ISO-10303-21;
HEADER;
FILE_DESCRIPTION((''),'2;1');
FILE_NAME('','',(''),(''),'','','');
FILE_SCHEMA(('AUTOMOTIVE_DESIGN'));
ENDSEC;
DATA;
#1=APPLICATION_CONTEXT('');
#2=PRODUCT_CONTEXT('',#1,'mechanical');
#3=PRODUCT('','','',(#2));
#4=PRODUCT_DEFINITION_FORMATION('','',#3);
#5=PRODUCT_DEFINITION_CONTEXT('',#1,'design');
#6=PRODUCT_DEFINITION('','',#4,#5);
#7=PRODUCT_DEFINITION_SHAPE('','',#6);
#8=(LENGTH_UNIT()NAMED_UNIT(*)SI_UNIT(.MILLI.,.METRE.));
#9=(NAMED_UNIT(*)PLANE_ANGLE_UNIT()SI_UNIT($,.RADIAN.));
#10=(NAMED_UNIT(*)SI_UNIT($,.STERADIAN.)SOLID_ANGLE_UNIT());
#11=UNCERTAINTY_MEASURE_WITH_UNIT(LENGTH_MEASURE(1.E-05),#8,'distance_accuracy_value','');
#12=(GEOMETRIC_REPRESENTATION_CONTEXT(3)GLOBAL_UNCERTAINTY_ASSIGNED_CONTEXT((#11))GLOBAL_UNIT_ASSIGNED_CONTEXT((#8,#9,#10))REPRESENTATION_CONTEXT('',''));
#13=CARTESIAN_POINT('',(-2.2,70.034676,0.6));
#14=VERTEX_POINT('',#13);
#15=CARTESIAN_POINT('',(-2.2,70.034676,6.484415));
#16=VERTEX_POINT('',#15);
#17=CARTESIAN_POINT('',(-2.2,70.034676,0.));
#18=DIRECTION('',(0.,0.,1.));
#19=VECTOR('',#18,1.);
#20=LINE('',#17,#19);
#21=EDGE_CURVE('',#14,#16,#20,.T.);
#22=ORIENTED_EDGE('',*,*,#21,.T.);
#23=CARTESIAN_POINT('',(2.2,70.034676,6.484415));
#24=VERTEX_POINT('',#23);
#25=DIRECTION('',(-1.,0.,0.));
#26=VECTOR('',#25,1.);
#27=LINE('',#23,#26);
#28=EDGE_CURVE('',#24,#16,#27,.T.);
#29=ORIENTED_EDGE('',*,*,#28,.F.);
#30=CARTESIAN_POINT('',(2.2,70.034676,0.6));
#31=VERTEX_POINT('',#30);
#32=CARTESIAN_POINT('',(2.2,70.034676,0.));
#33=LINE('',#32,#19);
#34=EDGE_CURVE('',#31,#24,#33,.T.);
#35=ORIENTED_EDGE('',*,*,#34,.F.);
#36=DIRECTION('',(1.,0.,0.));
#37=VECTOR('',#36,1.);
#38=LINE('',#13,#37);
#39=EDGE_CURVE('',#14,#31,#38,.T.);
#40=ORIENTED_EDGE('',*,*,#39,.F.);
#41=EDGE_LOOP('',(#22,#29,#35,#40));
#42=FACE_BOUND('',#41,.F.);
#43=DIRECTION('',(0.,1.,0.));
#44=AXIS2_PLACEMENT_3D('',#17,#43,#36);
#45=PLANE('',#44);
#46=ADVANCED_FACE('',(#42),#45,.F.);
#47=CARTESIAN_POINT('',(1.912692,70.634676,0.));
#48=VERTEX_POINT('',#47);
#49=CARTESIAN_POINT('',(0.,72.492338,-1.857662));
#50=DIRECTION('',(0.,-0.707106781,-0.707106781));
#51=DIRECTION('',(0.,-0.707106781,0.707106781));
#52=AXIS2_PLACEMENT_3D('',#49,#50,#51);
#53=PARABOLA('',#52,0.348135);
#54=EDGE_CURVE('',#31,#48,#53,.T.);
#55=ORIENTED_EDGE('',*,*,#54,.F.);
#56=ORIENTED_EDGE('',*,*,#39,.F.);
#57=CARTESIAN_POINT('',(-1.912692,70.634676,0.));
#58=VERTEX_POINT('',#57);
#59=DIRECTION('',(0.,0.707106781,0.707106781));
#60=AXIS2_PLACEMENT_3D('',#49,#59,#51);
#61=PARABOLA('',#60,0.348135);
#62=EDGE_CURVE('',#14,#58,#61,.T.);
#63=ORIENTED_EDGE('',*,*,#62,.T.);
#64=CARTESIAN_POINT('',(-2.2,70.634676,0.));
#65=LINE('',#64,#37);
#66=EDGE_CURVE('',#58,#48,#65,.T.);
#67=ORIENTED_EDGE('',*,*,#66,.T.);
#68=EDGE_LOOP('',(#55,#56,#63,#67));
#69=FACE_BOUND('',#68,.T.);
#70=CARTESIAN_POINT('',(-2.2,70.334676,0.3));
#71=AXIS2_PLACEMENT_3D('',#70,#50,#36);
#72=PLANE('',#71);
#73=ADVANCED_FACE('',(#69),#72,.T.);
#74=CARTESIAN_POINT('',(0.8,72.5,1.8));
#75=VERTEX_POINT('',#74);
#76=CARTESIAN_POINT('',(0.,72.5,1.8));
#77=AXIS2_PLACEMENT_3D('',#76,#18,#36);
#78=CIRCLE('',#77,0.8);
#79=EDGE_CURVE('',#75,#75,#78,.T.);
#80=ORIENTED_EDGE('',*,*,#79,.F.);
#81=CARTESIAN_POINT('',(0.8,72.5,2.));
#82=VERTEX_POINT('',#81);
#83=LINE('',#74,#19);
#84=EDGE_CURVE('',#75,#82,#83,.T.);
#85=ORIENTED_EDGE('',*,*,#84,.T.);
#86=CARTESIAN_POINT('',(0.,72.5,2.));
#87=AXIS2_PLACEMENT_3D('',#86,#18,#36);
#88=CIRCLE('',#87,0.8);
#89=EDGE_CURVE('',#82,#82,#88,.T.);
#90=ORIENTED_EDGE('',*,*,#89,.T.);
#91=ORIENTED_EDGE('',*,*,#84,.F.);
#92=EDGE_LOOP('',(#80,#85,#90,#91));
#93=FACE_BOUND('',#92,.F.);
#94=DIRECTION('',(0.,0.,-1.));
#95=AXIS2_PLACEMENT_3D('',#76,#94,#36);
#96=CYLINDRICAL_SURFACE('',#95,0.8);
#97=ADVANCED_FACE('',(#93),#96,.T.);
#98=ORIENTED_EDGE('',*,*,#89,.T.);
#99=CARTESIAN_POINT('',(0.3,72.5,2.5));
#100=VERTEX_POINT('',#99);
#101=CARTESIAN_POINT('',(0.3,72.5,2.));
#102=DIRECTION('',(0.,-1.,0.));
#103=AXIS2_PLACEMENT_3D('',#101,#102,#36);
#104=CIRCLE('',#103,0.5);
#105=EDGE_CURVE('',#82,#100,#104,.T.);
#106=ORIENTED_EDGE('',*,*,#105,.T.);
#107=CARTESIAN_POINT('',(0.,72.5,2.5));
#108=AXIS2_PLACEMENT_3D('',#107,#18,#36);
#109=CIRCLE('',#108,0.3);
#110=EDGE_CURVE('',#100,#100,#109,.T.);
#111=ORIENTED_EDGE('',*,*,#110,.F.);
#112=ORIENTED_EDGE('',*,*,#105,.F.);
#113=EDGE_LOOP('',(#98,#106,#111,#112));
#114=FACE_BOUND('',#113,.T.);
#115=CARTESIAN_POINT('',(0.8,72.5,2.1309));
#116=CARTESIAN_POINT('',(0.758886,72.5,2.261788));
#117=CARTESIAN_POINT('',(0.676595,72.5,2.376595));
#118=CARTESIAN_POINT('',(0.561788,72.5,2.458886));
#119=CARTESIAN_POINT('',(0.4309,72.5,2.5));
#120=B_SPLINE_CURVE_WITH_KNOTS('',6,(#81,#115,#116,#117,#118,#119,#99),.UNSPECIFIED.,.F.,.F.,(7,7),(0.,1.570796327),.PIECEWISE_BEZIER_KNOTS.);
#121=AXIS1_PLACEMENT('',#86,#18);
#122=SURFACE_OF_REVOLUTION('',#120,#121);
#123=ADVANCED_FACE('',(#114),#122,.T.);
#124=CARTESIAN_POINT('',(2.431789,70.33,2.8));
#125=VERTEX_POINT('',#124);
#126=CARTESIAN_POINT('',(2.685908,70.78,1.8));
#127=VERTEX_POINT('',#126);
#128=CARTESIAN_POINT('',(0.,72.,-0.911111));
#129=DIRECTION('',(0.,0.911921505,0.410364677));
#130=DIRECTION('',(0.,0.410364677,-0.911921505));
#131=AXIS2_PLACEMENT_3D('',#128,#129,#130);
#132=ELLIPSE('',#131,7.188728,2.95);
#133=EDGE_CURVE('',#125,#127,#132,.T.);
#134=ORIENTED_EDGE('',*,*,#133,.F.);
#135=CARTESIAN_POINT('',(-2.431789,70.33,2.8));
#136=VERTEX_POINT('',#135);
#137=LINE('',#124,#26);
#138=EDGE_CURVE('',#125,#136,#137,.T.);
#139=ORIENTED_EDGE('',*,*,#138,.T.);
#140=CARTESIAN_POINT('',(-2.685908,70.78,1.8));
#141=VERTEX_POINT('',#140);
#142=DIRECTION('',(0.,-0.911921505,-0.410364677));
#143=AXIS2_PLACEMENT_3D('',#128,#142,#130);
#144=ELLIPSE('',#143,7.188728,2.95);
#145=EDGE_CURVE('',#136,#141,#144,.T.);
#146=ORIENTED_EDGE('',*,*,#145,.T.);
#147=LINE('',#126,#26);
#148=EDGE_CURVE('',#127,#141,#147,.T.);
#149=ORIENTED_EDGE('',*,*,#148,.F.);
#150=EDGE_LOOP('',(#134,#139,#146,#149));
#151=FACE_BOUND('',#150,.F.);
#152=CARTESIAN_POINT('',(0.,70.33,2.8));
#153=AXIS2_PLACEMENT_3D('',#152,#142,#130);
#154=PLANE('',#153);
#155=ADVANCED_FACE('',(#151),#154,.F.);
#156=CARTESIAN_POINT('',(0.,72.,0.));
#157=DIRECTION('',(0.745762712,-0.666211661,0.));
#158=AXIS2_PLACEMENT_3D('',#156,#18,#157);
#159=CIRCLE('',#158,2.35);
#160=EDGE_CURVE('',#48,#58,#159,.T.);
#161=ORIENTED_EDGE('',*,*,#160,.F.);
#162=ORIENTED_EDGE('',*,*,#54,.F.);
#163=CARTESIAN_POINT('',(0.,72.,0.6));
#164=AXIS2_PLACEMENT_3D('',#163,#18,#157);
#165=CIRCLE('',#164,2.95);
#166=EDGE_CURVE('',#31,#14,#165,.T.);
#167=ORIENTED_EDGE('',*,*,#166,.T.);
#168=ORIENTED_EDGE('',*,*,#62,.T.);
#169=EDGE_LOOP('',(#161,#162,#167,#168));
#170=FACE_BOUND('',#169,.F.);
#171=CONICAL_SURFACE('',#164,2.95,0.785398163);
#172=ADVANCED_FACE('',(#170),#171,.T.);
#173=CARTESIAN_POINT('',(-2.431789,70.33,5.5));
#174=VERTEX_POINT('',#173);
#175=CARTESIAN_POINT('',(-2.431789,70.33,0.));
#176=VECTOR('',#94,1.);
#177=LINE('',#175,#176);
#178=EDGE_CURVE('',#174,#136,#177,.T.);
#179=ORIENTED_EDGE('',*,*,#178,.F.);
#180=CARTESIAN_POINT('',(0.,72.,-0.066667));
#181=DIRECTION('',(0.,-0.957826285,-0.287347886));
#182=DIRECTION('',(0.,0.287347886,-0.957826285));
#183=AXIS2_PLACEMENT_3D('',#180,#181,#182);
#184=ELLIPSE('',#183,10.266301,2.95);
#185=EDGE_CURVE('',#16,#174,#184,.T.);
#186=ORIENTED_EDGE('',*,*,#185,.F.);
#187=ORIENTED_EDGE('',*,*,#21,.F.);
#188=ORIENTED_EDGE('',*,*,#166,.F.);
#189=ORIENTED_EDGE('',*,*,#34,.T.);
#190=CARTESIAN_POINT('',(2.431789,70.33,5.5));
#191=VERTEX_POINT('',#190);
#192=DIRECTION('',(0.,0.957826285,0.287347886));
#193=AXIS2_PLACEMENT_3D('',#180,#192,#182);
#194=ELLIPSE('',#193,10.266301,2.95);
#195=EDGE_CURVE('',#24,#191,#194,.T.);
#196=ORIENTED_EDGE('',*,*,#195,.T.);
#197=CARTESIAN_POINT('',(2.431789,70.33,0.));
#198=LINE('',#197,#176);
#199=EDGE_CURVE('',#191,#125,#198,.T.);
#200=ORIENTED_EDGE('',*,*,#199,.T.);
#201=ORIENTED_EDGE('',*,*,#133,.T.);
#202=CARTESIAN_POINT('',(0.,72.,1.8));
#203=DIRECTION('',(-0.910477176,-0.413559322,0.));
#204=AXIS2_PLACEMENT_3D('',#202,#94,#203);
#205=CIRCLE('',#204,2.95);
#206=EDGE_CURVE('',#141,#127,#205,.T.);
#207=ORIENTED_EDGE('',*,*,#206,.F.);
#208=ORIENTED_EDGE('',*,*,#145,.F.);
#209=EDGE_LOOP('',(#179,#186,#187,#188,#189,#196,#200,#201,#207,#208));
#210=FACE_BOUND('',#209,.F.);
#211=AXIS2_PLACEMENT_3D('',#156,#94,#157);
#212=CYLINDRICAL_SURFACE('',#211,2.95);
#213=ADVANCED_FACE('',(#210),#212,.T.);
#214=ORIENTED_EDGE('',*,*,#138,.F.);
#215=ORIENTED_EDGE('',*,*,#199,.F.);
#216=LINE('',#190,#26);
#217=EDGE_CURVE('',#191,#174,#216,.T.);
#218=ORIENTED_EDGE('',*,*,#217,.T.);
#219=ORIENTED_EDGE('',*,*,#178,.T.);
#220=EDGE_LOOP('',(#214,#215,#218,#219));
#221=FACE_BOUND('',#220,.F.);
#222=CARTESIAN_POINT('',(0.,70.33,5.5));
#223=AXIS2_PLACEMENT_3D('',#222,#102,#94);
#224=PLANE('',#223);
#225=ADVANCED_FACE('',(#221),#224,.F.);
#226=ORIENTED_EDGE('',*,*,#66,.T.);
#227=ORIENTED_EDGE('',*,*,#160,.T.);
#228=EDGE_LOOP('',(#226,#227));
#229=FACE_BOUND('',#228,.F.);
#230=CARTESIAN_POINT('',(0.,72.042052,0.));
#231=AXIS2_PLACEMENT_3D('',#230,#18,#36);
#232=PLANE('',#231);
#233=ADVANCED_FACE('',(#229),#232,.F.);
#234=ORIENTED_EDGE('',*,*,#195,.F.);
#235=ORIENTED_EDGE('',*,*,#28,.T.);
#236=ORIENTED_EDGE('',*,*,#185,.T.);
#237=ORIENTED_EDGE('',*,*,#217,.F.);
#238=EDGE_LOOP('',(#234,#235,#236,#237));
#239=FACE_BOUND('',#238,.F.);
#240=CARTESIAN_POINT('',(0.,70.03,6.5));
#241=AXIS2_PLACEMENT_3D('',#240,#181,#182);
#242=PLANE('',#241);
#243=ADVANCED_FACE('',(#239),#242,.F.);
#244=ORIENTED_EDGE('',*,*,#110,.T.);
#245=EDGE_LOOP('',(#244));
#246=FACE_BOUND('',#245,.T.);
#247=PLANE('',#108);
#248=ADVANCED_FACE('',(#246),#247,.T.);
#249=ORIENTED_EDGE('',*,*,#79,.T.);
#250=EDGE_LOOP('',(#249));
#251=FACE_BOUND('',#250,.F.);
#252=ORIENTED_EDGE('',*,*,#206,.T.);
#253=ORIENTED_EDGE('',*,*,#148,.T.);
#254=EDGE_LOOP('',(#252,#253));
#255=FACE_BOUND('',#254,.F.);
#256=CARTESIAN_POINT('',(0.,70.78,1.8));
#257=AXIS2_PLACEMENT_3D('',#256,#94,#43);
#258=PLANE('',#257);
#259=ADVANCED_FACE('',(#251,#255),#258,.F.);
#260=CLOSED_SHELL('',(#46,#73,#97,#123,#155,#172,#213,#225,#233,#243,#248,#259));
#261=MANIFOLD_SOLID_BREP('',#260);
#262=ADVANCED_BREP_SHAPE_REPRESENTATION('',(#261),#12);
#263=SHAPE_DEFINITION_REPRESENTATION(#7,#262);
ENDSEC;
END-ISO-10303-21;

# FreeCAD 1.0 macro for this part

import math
import FreeCAD as App
import Part
import Sketcher


def edges_at(feature, points):
    """Names of the edges that pass closest to the given points."""
    edges = feature.Shape.Edges
    near = lambda p: min(range(len(edges)), key=lambda i: edges[i].distToShape(Part.Vertex(*p))[0])
    return sorted({f"Edge{near(p) + 1}" for p in points})


def add_polygon(sketch, points):
    """Adds a closed chain of lines whose ends are joined by coincident constraints."""
    first, n = sketch.GeometryCount, len(points)
    for a, b in zip(points, points[1:] + points[:1]):
        sketch.addGeometry(Part.LineSegment(App.Vector(*a, 0), App.Vector(*b, 0)), False)
    for i in range(n):
        sketch.addConstraint(Sketcher.Constraint("Coincident", first + i, 2, first + (i + 1) % n, 1))

doc = App.newDocument("Part")
body = doc.addObject("PartDesign::Body", "Body")

# Sketch on XY plane
sketch1 = body.newObject("Sketcher::SketchObject", "Sketch")
sketch1.AttachmentSupport = (doc.getObject("XY_Plane"), [""])
sketch1.MapMode = "FlatFace"
sketch1.addGeometry([
    Part.ArcOfCircle(Part.Circle(App.Vector(0, 0, 0), App.Vector(0, 0, 1), 3), math.radians(-42), math.radians(222)),
    Part.LineSegment(App.Vector(-2.2, -2, 0), App.Vector(2.2, -2, 0)),
], False)
sketch1.addConstraint([
    Sketcher.Constraint("Coincident", 0, 1, 1, 2),
    Sketcher.Constraint("Coincident", 1, 1, 0, 2),
    Sketcher.Constraint("Horizontal", 1),
    Sketcher.Constraint("Coincident", 0, 3, -1, 1),
    Sketcher.Constraint("Radius", 0, 2.95),
    Sketcher.Constraint("DistanceX", 1, 1, 1, 2, 4.4),
])
pad1 = body.newObject("PartDesign::Pad", "Pad")
pad1.Profile = sketch1
pad1.Length = 6.5

# Sketch on YZ plane
sketch2 = body.newObject("Sketcher::SketchObject", "Sketch001")
sketch2.AttachmentSupport = (doc.getObject("YZ_Plane"), [""])
sketch2.MapMode = "FlatFace"
add_polygon(sketch2, [(-2, 6.5), (-1.7, 5.5), (-1.7, 2.8), (-1.2, 1.8), (4, 1.8), (4, 6.5)])  # lines 0-5
sketch2.addConstraint([
    Sketcher.Constraint("Vertical", 1),
    Sketcher.Constraint("Horizontal", 3),
    Sketcher.Constraint("Vertical", 4),
    Sketcher.Constraint("Horizontal", 5),
    Sketcher.Constraint("DistanceY", 1, 2, 1, 1, 2.7),
    Sketcher.Constraint("DistanceY", 4, 1, 4, 2, 4.7),
    Sketcher.Constraint("DistanceX", -1, 1, 3, 2, 4.0),
    Sketcher.Constraint("DistanceY", 2, 2, 1, 2, 1.0),
    Sketcher.Constraint("DistanceX", 3, 1, 3, 2, 5.22),
    Sketcher.Constraint("DistanceX", 5, 2, 5, 1, 5.97),
    Sketcher.Constraint("DistanceY", -1, 1, 0, 2, 5.5),
    Sketcher.Constraint("DistanceX", 5, 2, 0, 2, 0.3),
])
pocket1 = body.newObject("PartDesign::Pocket", "Pocket")
pocket1.Profile = sketch2
pocket1.Type = "ThroughAll"
pocket1.Midplane = True

# Sketch on XY plane
sketch3 = body.newObject("Sketcher::SketchObject", "Sketch002")
sketch3.AttachmentSupport = (doc.getObject("XY_Plane"), [""])
sketch3.MapMode = "FlatFace"
sketch3.AttachmentOffset = App.Placement(App.Vector(0, 0, 1.8), App.Rotation())
sketch3.addGeometry(Part.Circle(App.Vector(0, 0.5, 0), App.Vector(0, 0, 1), 0.8), False)
sketch3.addConstraint([
    Sketcher.Constraint("PointOnObject", 0, 3, -2),
    Sketcher.Constraint("Diameter", 0, 1.6),
    Sketcher.Constraint("DistanceY", -1, 1, 0, 3, 0.5),
])
pad2 = body.newObject("PartDesign::Pad", "Pad001")
pad2.Profile = sketch3
pad2.Length = 0.7
doc.recompute()

fillet = body.newObject("PartDesign::Fillet", "Fillet")
fillet.Base = (pad2, edges_at(pad2, [(-0.8, 0.5, 2.5)]))
fillet.Radius = 0.5
doc.recompute()

chamfer = body.newObject("PartDesign::Chamfer", "Chamfer")
chamfer.Base = (fillet, edges_at(fillet, [(0, 2.95, 0), (0, -1.965, 0)]))
chamfer.Size = 0.6
body2 = doc.addObject("PartDesign::Body", "Body001")
doc.recompute()

body.Placement = App.Placement(App.Vector(0, 72, 0), App.Rotation(App.Vector(0, 0, 1), 0))
boolean = body2.newObject("PartDesign::Boolean", "Boolean")
boolean.Type = "Fuse"
boolean.addObjects([body])

doc.recompute()
